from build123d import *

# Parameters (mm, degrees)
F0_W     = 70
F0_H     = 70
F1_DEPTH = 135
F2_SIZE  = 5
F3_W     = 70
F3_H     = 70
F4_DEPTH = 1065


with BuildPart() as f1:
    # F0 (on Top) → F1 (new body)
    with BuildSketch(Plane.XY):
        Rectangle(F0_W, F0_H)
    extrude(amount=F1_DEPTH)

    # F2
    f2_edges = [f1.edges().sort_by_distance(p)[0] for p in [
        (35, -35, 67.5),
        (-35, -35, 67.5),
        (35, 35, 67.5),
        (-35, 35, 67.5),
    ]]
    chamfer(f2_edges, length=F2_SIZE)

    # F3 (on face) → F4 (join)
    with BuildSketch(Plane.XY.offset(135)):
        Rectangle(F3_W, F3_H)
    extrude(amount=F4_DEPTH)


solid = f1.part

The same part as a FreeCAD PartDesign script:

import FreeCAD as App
import Part
import Sketcher

V = App.Vector
Q = App.Units.Quantity


def edges_at(feature, points):
    """Names of the edges that pass closest to the given points."""
    edges = feature.Shape.Edges
    near = lambda p: min(range(len(edges)), key=lambda i: edges[i].distToShape(Part.Vertex(*p))[0])
    return sorted({f"Edge{near(p) + 1}" for p in points})


def add_polygon(sketch, points):
    """Adds a closed chain of lines whose ends are joined by coincident constraints."""
    first, n = sketch.GeometryCount, len(points)
    for a, b in zip(points, points[1:] + points[:1]):
        sketch.addGeometry(Part.LineSegment(App.Vector(*a, 0), App.Vector(*b, 0)), False)
    for i in range(n):
        sketch.addConstraint(Sketcher.Constraint("Coincident", first + i, 2, first + (i + 1) % n, 1))

doc = App.newDocument("Part")
params = doc.addObject("Spreadsheet::Sheet", "Params")
for row, (alias, value) in enumerate([
    ("sketch1_width", "70 mm"),
    ("pad1_length", "135 mm"),
    ("chamfer_size", "5 mm"),
    ("sketch2_width", "70 mm"),
    ("pad2_length", "1065 mm"),
], start=1):
    params.set(f"A{row}", alias)
    params.set(f"B{row}", "=" + value)
    params.setAlias(f"B{row}", alias)

body = doc.addObject("PartDesign::Body", "Body")

# Sketch on XY plane
sketch1 = body.newObject("Sketcher::SketchObject", "Sketch")
sketch1.AttachmentSupport = (doc.getObject("XY_Plane"), [""])
sketch1.MapMode = "FlatFace"
add_polygon(sketch1, [(-35, 35), (-35, -35), (35, -35), (35, 35)])  # lines 0-3
sketch1.addConstraint(Sketcher.Constraint("Vertical", 0))
sketch1.addConstraint(Sketcher.Constraint("Horizontal", 1))
sketch1.addConstraint(Sketcher.Constraint("Vertical", 2))
sketch1.addConstraint(Sketcher.Constraint("Horizontal", 3))
sketch1.addConstraint(Sketcher.Constraint("Symmetric", 0, 2, 2, 2, -1, 1))
sketch1.addConstraint(Sketcher.Constraint("Equal", 3, 0))
sketch1.addConstraint(Sketcher.Constraint("DistanceX", 1, 1, 1, 2, Q("70 mm")))
sketch1.setExpression("Constraints[10]", "Params.sketch1_width")
pad1 = body.newObject("PartDesign::Pad", "Pad")
pad1.Profile = sketch1
pad1.setExpression("Length", "Params.pad1_length")
doc.recompute()

chamfer = body.newObject("PartDesign::Chamfer", "Chamfer")
chamfer.Base = (pad1, edges_at(pad1, [
    (35, -35, 67.5),
    (-35, -35, 67.5),
    (35, 35, 67.5),
    (-35, 35, 67.5),
]))
chamfer.setExpression("Size", "Params.chamfer_size")

# Sketch on XY plane
sketch2 = body.newObject("Sketcher::SketchObject", "Sketch001")
sketch2.AttachmentSupport = (doc.getObject("XY_Plane"), [""])
sketch2.MapMode = "FlatFace"
sketch2.AttachmentOffset = App.Placement(V(0, 0, 135), App.Rotation())
add_polygon(sketch2, [(-35, 35), (-35, -35), (35, -35), (35, 35)])  # lines 0-3
sketch2.addConstraint(Sketcher.Constraint("Vertical", 0))
sketch2.addConstraint(Sketcher.Constraint("Horizontal", 1))
sketch2.addConstraint(Sketcher.Constraint("Vertical", 2))
sketch2.addConstraint(Sketcher.Constraint("Horizontal", 3))
sketch2.addConstraint(Sketcher.Constraint("Symmetric", 0, 2, 2, 2, -1, 1))
sketch2.addConstraint(Sketcher.Constraint("Equal", 3, 0))
sketch2.addConstraint(Sketcher.Constraint("DistanceX", 1, 1, 1, 2, Q("70 mm")))
sketch2.setExpression("Constraints[10]", "Params.sketch2_width")
pad2 = body.newObject("PartDesign::Pad", "Pad001")
pad2.Profile = sketch2
pad2.setExpression("Length", "Params.pad2_length")

doc.recompute()
